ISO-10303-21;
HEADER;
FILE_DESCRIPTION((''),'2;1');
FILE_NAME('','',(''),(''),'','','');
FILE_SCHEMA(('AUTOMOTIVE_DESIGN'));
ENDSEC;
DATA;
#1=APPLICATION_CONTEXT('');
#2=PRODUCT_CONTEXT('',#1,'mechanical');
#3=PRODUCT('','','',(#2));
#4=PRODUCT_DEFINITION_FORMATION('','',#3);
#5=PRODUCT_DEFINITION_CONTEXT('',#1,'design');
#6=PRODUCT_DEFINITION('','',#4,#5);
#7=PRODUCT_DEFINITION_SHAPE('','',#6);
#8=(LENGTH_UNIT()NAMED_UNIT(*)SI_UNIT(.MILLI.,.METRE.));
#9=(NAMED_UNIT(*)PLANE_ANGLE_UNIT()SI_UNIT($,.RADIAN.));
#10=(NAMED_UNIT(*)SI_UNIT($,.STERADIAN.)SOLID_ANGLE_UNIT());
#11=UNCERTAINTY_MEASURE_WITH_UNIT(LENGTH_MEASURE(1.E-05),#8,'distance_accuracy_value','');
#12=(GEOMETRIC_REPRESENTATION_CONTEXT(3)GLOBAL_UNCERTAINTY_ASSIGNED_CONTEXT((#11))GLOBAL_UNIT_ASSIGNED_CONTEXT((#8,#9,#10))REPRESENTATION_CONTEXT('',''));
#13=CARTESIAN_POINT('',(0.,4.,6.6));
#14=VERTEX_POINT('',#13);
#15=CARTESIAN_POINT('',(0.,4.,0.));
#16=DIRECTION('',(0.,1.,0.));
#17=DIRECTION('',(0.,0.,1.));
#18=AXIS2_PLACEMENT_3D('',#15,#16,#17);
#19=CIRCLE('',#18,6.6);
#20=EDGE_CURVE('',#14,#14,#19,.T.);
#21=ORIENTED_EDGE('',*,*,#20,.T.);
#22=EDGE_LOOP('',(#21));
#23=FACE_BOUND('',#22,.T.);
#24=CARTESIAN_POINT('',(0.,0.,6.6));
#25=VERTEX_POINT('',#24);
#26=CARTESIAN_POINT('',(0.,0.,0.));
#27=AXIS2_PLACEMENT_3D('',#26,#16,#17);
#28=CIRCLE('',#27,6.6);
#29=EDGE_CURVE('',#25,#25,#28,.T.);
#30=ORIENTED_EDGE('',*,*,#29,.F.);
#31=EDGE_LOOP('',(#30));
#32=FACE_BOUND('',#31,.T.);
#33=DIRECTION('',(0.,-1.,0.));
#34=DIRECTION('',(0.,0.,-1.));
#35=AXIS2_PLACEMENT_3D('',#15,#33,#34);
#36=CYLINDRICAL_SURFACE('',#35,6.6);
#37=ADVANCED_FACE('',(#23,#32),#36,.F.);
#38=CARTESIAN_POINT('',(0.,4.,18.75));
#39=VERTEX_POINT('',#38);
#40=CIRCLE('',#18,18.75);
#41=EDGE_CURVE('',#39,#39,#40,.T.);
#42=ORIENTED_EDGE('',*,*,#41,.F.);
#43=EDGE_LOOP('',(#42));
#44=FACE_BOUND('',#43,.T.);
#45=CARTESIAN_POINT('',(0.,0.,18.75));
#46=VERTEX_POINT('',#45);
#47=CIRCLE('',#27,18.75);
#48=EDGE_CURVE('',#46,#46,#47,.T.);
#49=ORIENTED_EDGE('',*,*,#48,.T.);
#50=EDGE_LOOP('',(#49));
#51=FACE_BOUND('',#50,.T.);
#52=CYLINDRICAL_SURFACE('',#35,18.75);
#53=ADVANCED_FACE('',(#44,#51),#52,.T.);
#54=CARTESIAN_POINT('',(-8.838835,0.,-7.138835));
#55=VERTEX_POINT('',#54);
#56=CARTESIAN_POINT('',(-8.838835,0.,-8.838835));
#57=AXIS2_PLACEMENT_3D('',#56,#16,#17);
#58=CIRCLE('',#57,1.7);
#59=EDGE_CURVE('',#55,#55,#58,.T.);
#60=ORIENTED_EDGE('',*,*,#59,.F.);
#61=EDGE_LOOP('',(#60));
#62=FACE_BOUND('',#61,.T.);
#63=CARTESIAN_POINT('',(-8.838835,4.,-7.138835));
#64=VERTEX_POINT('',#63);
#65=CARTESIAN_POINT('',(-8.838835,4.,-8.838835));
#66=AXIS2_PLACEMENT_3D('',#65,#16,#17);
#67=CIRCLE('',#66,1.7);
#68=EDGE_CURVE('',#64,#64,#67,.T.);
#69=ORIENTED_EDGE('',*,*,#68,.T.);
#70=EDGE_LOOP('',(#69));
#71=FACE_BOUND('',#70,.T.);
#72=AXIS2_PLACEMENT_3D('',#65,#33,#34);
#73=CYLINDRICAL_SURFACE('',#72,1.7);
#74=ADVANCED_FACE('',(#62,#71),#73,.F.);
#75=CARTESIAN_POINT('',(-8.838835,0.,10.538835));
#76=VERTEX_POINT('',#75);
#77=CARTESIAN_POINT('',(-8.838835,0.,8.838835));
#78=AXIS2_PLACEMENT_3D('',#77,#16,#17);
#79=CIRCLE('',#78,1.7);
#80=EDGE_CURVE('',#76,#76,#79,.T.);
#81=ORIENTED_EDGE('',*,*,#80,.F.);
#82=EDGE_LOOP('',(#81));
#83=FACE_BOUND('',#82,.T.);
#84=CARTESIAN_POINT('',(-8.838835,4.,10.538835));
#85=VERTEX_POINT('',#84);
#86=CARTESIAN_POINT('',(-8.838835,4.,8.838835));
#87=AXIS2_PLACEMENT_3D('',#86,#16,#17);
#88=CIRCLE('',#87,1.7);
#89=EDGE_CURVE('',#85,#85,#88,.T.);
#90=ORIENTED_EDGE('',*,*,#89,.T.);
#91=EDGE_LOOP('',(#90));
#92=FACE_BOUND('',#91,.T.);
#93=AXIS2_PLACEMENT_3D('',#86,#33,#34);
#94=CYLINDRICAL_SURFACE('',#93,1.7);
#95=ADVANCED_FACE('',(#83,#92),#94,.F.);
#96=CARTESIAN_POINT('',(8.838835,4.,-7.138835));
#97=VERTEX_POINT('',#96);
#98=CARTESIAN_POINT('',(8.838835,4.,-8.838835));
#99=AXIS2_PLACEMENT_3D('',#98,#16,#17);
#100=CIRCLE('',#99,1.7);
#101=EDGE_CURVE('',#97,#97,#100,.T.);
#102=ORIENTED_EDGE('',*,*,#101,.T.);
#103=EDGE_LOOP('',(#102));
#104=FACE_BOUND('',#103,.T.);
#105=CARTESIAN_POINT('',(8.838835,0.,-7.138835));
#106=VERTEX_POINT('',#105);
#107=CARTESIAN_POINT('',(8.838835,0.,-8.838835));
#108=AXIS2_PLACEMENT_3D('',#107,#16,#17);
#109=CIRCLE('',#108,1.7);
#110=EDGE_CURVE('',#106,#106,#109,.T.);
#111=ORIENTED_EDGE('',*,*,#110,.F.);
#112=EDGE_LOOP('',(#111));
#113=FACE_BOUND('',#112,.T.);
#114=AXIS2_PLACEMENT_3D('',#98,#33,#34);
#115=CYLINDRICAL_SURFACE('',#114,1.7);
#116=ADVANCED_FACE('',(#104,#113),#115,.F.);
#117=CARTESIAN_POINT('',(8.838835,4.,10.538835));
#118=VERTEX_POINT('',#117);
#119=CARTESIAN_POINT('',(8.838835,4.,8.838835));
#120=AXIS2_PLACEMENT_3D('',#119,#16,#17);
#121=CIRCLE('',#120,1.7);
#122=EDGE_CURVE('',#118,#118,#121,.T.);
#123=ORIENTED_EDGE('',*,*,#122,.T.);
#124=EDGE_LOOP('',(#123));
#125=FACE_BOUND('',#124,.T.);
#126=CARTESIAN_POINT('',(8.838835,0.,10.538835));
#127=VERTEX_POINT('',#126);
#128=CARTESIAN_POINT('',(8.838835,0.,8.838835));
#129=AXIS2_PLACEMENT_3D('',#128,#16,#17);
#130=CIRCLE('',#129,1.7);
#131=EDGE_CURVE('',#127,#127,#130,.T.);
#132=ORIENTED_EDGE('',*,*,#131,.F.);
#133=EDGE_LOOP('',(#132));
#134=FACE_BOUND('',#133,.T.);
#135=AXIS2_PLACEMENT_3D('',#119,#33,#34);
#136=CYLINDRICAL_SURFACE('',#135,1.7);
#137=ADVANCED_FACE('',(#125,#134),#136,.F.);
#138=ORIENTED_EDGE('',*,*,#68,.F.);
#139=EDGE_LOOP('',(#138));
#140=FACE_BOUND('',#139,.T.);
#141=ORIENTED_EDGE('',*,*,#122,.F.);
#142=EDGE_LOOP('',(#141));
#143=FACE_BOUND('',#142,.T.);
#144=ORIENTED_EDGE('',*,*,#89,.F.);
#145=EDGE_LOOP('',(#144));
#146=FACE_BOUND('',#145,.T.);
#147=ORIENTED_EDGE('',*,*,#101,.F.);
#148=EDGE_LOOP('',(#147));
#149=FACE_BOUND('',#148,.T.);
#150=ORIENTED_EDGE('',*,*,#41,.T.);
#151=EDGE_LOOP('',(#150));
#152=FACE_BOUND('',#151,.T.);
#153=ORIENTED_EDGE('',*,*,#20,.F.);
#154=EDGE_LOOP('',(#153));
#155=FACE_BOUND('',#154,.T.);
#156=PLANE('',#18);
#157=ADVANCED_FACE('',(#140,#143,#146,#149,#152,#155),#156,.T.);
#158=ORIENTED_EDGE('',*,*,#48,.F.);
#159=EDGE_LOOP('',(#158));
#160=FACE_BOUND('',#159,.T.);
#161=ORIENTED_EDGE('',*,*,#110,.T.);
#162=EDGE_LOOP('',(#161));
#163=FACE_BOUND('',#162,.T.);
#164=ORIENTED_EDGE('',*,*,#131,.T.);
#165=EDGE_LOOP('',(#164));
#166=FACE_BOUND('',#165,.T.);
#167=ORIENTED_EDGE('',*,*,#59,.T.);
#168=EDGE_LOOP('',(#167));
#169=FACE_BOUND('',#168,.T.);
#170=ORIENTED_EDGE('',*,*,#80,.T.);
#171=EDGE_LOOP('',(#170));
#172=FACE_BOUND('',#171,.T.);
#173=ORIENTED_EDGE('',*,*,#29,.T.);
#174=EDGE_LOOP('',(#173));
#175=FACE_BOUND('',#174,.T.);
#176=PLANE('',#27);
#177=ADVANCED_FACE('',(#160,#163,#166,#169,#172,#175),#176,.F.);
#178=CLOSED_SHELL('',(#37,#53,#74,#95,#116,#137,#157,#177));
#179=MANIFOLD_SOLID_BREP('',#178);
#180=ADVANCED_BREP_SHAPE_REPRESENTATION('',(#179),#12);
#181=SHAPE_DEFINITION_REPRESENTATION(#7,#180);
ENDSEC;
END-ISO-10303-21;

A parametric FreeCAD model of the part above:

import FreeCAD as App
import Part
import Sketcher
from FreeCAD import Vector

doc = App.newDocument("Part")
params = doc.addObject("Spreadsheet::Sheet", "Params")
for row, (alias, value) in enumerate([
    ("sketch1_diameter", "37.5 mm"),
    ("sketch1_diameter2", "3.4 mm"),
    ("sketch1_diameter3", "13.2 mm"),
    ("pad1_length", "4 mm"),
], start=1):
    params.set(f"A{row}", alias)
    params.set(f"B{row}", "=" + value)
    params.setAlias(f"B{row}", alias)

body = doc.addObject("PartDesign::Body", "Body")

sketch1 = body.newObject("Sketcher::SketchObject", "Sketch")
sketch1.AttachmentSupport = (doc.getObject("XZ_Plane"), [""])
sketch1.MapMode = "FlatFace"
sketch1.addGeometry(Part.Circle(Vector(0, 0, 0), Vector(0, 0, 1), 18.75), False)
sketch1.addGeometry(Part.Circle(Vector(-8.838835, -8.838835, 0), Vector(0, 0, 1), 1.7), False)
sketch1.addGeometry(Part.Circle(Vector(-8.838835, 8.838835, 0), Vector(0, 0, 1), 1.7), False)
sketch1.addGeometry(Part.Circle(Vector(8.838835, -8.838835, 0), Vector(0, 0, 1), 1.7), False)
sketch1.addGeometry(Part.Circle(Vector(0, 0, 0), Vector(0, 0, 1), 6.6), False)
sketch1.addGeometry(Part.Circle(Vector(8.838835, 8.838835, 0), Vector(0, 0, 1), 1.7), False)
sketch1.addConstraint(Sketcher.Constraint("Coincident", 0, 3, -1, 1))
sketch1.addConstraint(Sketcher.Constraint("Coincident", 4, 3, -1, 1))
sketch1.addConstraint(Sketcher.Constraint("Equal", 1, 2))
sketch1.addConstraint(Sketcher.Constraint("Equal", 2, 3))
sketch1.addConstraint(Sketcher.Constraint("Equal", 3, 5))
sketch1.addConstraint(Sketcher.Constraint("Symmetric", 2, 3, 3, 3, -1, 1))
sketch1.addConstraint(Sketcher.Constraint("Symmetric", 1, 3, 5, 3, -1, 1))
sketch1.addConstraint(Sketcher.Constraint("Symmetric", 1, 3, 3, 3, -2))
sketch1.addConstraint(Sketcher.Constraint("Diameter", 0, 37.5))
sketch1.addConstraint(Sketcher.Constraint("Diameter", 1, 3.4))
sketch1.addConstraint(Sketcher.Constraint("Diameter", 4, 13.2))
sketch1.addConstraint(Sketcher.Constraint("DistanceY", 1, 3, 2, 3, 17.67767))
sketch1.addConstraint(Sketcher.Constraint("DistanceX", 1, 3, 3, 3, 17.67767))
sketch1.setExpression("Constraints[8]", "Params.sketch1_diameter")
sketch1.setExpression("Constraints[9]", "Params.sketch1_diameter2")
sketch1.setExpression("Constraints[10]", "Params.sketch1_diameter3")
pad1 = body.newObject("PartDesign::Pad", "Pad")
pad1.Profile = sketch1
pad1.setExpression("Length", "Params.pad1_length")
pad1.Reversed = True

doc.recompute()
